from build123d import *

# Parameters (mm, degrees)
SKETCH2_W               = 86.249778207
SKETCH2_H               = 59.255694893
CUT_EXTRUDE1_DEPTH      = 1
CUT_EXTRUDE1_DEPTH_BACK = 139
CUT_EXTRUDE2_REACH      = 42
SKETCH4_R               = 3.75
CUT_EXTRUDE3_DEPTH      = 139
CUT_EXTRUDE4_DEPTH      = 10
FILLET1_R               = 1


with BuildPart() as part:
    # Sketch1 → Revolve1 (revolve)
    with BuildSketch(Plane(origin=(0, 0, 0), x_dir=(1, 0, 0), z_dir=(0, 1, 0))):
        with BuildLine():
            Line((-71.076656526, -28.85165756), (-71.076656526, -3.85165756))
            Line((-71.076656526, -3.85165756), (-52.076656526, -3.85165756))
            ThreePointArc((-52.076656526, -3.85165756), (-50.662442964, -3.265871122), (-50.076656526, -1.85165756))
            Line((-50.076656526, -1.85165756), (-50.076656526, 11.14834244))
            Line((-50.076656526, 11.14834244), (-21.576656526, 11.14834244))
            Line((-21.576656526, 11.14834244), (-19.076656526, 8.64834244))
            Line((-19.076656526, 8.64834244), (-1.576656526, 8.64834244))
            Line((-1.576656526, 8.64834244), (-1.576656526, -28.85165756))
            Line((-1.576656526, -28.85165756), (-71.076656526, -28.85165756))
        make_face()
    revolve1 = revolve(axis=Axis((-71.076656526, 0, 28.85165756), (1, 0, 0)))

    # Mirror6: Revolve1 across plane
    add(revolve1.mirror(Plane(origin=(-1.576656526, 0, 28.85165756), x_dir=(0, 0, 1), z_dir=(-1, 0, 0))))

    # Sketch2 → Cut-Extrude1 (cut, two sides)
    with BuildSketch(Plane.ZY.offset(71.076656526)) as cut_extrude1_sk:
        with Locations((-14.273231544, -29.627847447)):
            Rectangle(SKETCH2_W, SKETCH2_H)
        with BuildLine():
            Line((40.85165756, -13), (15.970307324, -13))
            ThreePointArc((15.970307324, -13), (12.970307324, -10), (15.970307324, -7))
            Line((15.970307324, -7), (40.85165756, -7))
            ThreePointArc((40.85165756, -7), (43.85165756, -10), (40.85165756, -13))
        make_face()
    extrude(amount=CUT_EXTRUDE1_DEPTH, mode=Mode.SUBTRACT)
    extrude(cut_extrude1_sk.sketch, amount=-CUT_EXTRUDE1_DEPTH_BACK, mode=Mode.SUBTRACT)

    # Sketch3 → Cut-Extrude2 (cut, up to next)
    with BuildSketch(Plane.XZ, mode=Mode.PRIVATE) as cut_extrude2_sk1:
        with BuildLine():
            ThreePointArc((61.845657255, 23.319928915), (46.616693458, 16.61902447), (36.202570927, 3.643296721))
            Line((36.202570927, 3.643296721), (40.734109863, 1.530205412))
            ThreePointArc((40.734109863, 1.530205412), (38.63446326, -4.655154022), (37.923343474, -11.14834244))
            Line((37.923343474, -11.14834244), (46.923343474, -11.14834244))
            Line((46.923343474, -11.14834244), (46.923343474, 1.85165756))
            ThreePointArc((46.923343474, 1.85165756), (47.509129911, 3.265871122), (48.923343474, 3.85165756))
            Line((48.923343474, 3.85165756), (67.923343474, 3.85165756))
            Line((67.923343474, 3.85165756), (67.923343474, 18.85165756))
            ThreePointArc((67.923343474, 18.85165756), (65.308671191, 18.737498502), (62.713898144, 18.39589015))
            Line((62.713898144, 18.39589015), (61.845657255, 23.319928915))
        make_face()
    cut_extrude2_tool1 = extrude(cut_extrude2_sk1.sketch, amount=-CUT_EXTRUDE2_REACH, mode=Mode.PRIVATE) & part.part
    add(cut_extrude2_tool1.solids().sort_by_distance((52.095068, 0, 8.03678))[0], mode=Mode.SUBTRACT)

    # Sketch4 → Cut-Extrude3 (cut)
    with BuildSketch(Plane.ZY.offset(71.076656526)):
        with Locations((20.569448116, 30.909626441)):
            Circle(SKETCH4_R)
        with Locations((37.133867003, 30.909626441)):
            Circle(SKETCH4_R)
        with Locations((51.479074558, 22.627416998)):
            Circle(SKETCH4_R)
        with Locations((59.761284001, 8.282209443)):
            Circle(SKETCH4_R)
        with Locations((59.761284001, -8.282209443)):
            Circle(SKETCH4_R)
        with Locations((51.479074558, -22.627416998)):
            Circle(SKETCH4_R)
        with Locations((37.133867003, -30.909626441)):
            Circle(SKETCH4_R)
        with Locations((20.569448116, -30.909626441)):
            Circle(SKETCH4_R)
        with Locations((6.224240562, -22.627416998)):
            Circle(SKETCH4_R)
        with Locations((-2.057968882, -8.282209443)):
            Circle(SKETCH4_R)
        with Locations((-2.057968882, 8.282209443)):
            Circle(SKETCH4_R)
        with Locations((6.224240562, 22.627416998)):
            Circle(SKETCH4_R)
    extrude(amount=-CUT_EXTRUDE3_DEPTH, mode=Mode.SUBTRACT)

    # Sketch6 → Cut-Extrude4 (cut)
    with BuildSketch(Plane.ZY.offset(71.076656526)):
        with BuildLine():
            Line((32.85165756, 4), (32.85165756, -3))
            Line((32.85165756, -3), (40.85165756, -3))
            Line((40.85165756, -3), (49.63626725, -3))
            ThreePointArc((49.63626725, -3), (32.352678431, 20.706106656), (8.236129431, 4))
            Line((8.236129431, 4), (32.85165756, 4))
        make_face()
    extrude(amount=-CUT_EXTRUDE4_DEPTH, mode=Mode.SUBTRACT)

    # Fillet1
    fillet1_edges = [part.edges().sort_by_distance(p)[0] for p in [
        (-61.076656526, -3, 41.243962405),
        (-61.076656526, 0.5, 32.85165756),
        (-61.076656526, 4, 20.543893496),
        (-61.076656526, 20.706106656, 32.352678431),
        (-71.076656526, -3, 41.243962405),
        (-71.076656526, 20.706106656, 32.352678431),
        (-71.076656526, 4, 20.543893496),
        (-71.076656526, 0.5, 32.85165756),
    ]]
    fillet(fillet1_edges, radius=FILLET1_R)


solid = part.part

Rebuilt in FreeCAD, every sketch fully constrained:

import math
import FreeCAD as App
import Part
import Sketcher
Q = App.Units.Quantity


def edges_at(feature, points):
    """Names of the edges that pass closest to the given points."""
    edges = feature.Shape.Edges
    near = lambda p: min(range(len(edges)), key=lambda i: edges[i].distToShape(Part.Vertex(*p))[0])
    return sorted({f"Edge{near(p) + 1}" for p in points})

doc = App.newDocument("Part")
params = doc.addObject("Spreadsheet::Sheet", "Params")
for row, (alias, value) in enumerate([
    ("sketch1_radius", "2 mm"),
    ("sketch1_width", "19 mm"),
    ("sketch1_height", "25 mm"),
    ("sketch1_height2", "13 mm"),
    ("sketch1_width2", "69.5 mm"),
    ("revolution_angle", "360 deg"),
    ("sketch2_radius", "3 mm"),
    ("sketch2_width", "7 mm"),
    ("sketch2_height", "12 mm"),
    ("sketch3_radius", "35 mm"),
    ("sketch3_radius2", "30 mm"),
    ("sketch3_radius3", "2 mm"),
    ("sketch3_width", "9 mm"),
    ("sketch3_height", "13 mm"),
    ("pocket2_length", "38.157568 mm"),
    ("sketch4_diameter", "7.5 mm"),
    ("pocket3_length", "139 mm"),
    ("sketch5_radius", "21 mm"),
    ("sketch5_width", "7 mm"),
    ("pocket4_length", "10 mm"),
    ("fillet_radius", "1 mm"),
], start=1):
    params.set(f"A{row}", alias)
    params.set(f"B{row}", "=" + value)
    params.setAlias(f"B{row}", alias)

body = doc.addObject("PartDesign::Body", "Body")

# Sketch on XZ plane
sketch1 = body.newObject("Sketcher::SketchObject", "Sketch")
sketch1.AttachmentSupport = (doc.getObject("XZ_Plane"), [""])
sketch1.MapMode = "FlatFace"
sketch1.addGeometry([
    Part.LineSegment(App.Vector(-71.076657, 3.851658, 0), App.Vector(-71.076657, 28.851658, 0)),  # 0
    Part.LineSegment(App.Vector(-71.076657, 28.851658, 0), App.Vector(-1.576657, 28.851658, 0)),  # 1
    Part.LineSegment(App.Vector(-1.576657, 28.851658, 0), App.Vector(-1.576657, -8.648342, 0)),  # 2
    Part.LineSegment(App.Vector(-1.576657, -8.648342, 0), App.Vector(-19.076657, -8.648342, 0)),  # 3
    Part.LineSegment(App.Vector(-19.076657, -8.648342, 0), App.Vector(-21.576657, -11.148342, 0)),  # 4
    Part.LineSegment(App.Vector(-21.576657, -11.148342, 0), App.Vector(-50.076657, -11.148342, 0)),  # 5
    Part.LineSegment(App.Vector(-50.076657, -11.148342, 0), App.Vector(-50.076657, 1.851658, 0)),  # 6
    Part.ArcOfCircle(Part.Circle(App.Vector(-52.076657, 1.851658, 0), App.Vector(0, 0, 1), 2), math.radians(0), math.radians(90)),  # 7
    Part.LineSegment(App.Vector(-52.076657, 3.851658, 0), App.Vector(-71.076657, 3.851658, 0)),  # 8
], False)
sketch1.addGeometry(Part.LineSegment(App.Vector(-71.076657, 28.851658, 0), App.Vector(-1.576657, 28.851658, 0)), True)  # axis
sketch1.addConstraint([
    Sketcher.Constraint("Coincident", 0, 2, 1, 1),
    Sketcher.Constraint("Coincident", 1, 2, 2, 1),
    Sketcher.Constraint("Coincident", 2, 2, 3, 1),
    Sketcher.Constraint("Coincident", 3, 2, 4, 1),
    Sketcher.Constraint("Coincident", 4, 2, 5, 1),
    Sketcher.Constraint("Coincident", 5, 2, 6, 1),
    Sketcher.Constraint("Tangent", 6, 2, 7, 1),
    Sketcher.Constraint("Tangent", 7, 2, 8, 1),
    Sketcher.Constraint("Coincident", 8, 2, 0, 1),
    Sketcher.Constraint("Vertical", 0),
    Sketcher.Constraint("Horizontal", 1),
    Sketcher.Constraint("Vertical", 2),
    Sketcher.Constraint("Horizontal", 3),
    Sketcher.Constraint("Horizontal", 5),
    Sketcher.Constraint("Vertical", 6),
    Sketcher.Constraint("Horizontal", 8),
    Sketcher.Constraint("Horizontal", 9),
    Sketcher.Constraint("Coincident", 9, 1, 0, 2),
    Sketcher.Constraint("Vertical", 2, 2, 9, 2),
    Sketcher.Constraint("Radius", 7, Q("2 mm")),
    Sketcher.Constraint("DistanceX", 8, 2, 8, 1, Q("19 mm")),
    Sketcher.Constraint("DistanceY", 0, 1, 0, 2, Q("25 mm")),
    Sketcher.Constraint("DistanceY", 6, 1, 6, 2, Q("13 mm")),
    Sketcher.Constraint("Angle", 4, Q("-135 deg")),
    Sketcher.Constraint("DistanceX", 1, 1, 1, 2, Q("69.5 mm")),
    Sketcher.Constraint("DistanceX", 3, 2, 3, 1, Q("17.5 mm")),
    Sketcher.Constraint("DistanceX", 5, 2, 5, 1, Q("28.5 mm")),
    Sketcher.Constraint("DistanceX", 7, 3, -1, 1, Q("52.076657 mm")),
    Sketcher.Constraint("DistanceY", -1, 1, 7, 3, Q("1.851658 mm")),
])
sketch1.setExpression("Constraints[19]", "Params.sketch1_radius")
sketch1.setExpression("Constraints[20]", "Params.sketch1_width")
sketch1.setExpression("Constraints[21]", "Params.sketch1_height")
sketch1.setExpression("Constraints[22]", "Params.sketch1_height2")
sketch1.setExpression("Constraints[24]", "Params.sketch1_width2")
revolution = body.newObject("PartDesign::Revolution", "Revolution")
revolution.Profile = sketch1
revolution.ReferenceAxis = (sketch1, ["Axis0"])
revolution.setExpression("Angle", "Params.revolution_angle")
doc.recompute()

datumplane = body.newObject("PartDesign::Plane", "DatumPlane")
datumplane.AttachmentSupport = (doc.getObject("YZ_Plane"), [""])
datumplane.MapMode = "FlatFace"
datumplane.AttachmentOffset = App.Placement(App.Vector(0, 0, -1.576657), App.Rotation())
mirrored = body.newObject("PartDesign::Mirrored", "Mirrored")
mirrored.Originals = [revolution]
mirrored.MirrorPlane = (datumplane, [""])
body.Tip = mirrored

# Sketch on YZ plane
sketch2 = body.newObject("Sketcher::SketchObject", "Sketch001")
sketch2.AttachmentSupport = (doc.getObject("YZ_Plane"), [""])
sketch2.MapMode = "FlatFace"
sketch2.AttachmentOffset = App.Placement(App.Vector(0, 0, -71.076657), App.Rotation())
sketch2.addGeometry([
    Part.LineSegment(App.Vector(0, -57.398121, 0), App.Vector(-59.255695, -57.398121, 0)),  # 0
    Part.LineSegment(App.Vector(-59.255695, -57.398121, 0), App.Vector(-59.255695, 28.851658, 0)),  # 1
    Part.LineSegment(App.Vector(-59.255695, 28.851658, 0), App.Vector(-13, 28.851658, 0)),  # 2
    Part.LineSegment(App.Vector(-13, 28.851658, 0), App.Vector(-13, 40.851658, 0)),  # 3
    Part.ArcOfCircle(Part.Circle(App.Vector(-10, 40.851658, 0), App.Vector(0, 0, 1), 3), math.radians(0), math.radians(180)),  # 4
    Part.LineSegment(App.Vector(-7, 40.851658, 0), App.Vector(-7, 28.851658, 0)),  # 5
    Part.LineSegment(App.Vector(-7, 28.851658, 0), App.Vector(0, 28.851658, 0)),  # 6
    Part.LineSegment(App.Vector(0, 28.851658, 0), App.Vector(0, -57.398121, 0)),  # 7
], False)
sketch2.addConstraint([
    Sketcher.Constraint("Coincident", 0, 2, 1, 1),
    Sketcher.Constraint("Coincident", 1, 2, 2, 1),
    Sketcher.Constraint("Coincident", 2, 2, 3, 1),
    Sketcher.Constraint("Tangent", 3, 2, 4, 2),
    Sketcher.Constraint("Tangent", 4, 1, 5, 1),
    Sketcher.Constraint("Coincident", 5, 2, 6, 1),
    Sketcher.Constraint("Coincident", 6, 2, 7, 1),
    Sketcher.Constraint("Coincident", 7, 2, 0, 1),
    Sketcher.Constraint("Horizontal", 0),
    Sketcher.Constraint("Vertical", 1),
    Sketcher.Constraint("Horizontal", 2),
    Sketcher.Constraint("Vertical", 3),
    Sketcher.Constraint("Vertical", 5),
    Sketcher.Constraint("Horizontal", 6),
    Sketcher.Constraint("Vertical", 7),
    Sketcher.Constraint("PointOnObject", 6, 2, -2),
    Sketcher.Constraint("Horizontal", 2, 2, 5, 2),
    Sketcher.Constraint("Radius", 4, Q("3 mm")),
    Sketcher.Constraint("DistanceX", 6, 1, 6, 2, Q("7 mm")),
    Sketcher.Constraint("DistanceY", 3, 1, 3, 2, Q("12 mm")),
    Sketcher.Constraint("DistanceY", 1, 1, 1, 2, Q("86.249778 mm")),
    Sketcher.Constraint("DistanceX", 0, 2, 0, 1, Q("59.255695 mm")),
    Sketcher.Constraint("DistanceY", 0, 2, -1, 1, Q("57.398121 mm")),
])
sketch2.setExpression("Constraints[17]", "Params.sketch2_radius")
sketch2.setExpression("Constraints[18]", "Params.sketch2_width")
sketch2.setExpression("Constraints[19]", "Params.sketch2_height")
pocket1 = body.newObject("PartDesign::Pocket", "Pocket")
pocket1.Profile = sketch2
pocket1.Type = "ThroughAll"
pocket1.Midplane = True

# Sketch on XZ plane
sketch3 = body.newObject("Sketcher::SketchObject", "Sketch002")
sketch3.AttachmentSupport = (doc.getObject("XZ_Plane"), [""])
sketch3.MapMode = "FlatFace"
sketch3.addGeometry([
    Part.ArcOfCircle(Part.Circle(App.Vector(67.923343, -11.148342, 0), App.Vector(0, 0, 1), 35), math.radians(100), math.radians(155)),  # 0
    Part.LineSegment(App.Vector(36.202571, 3.643297, 0), App.Vector(40.73411, 1.530205, 0)),  # 1
    Part.ArcOfCircle(Part.Circle(App.Vector(67.923343, -11.148342, 0), App.Vector(0, 0, 1), 30), math.radians(155), math.radians(180)),  # 2
    Part.LineSegment(App.Vector(37.923343, -11.148342, 0), App.Vector(46.923343, -11.148342, 0)),  # 3
    Part.LineSegment(App.Vector(46.923343, -11.148342, 0), App.Vector(46.923343, 1.851658, 0)),  # 4
    Part.ArcOfCircle(Part.Circle(App.Vector(48.923343, 1.851658, 0), App.Vector(0, 0, 1), 2), math.radians(90), math.radians(180)),  # 5
    Part.LineSegment(App.Vector(48.923343, 3.851658, 0), App.Vector(67.923343, 3.851658, 0)),  # 6
    Part.LineSegment(App.Vector(67.923343, 3.851658, 0), App.Vector(67.923343, 18.851658, 0)),  # 7
    Part.ArcOfCircle(Part.Circle(App.Vector(67.923343, -11.148343, 0), App.Vector(0, 0, 1), 30), math.radians(90), math.radians(100)),  # 8
    Part.LineSegment(App.Vector(62.713898, 18.39589, 0), App.Vector(61.845657, 23.319929, 0)),  # 9
], False)
sketch3.addConstraint([
    Sketcher.Constraint("Coincident", 0, 2, 1, 1),
    Sketcher.Constraint("Coincident", 1, 2, 2, 1),
    Sketcher.Constraint("Coincident", 2, 2, 3, 1),
    Sketcher.Constraint("Coincident", 3, 2, 4, 1),
    Sketcher.Constraint("Tangent", 4, 2, 5, 2),
    Sketcher.Constraint("Tangent", 5, 1, 6, 1),
    Sketcher.Constraint("Coincident", 6, 2, 7, 1),
    Sketcher.Constraint("Coincident", 7, 2, 8, 1),
    Sketcher.Constraint("Coincident", 8, 2, 9, 1),
    Sketcher.Constraint("Coincident", 9, 2, 0, 1),
    Sketcher.Constraint("Horizontal", 3),
    Sketcher.Constraint("Vertical", 4),
    Sketcher.Constraint("Horizontal", 6),
    Sketcher.Constraint("Vertical", 7),
    Sketcher.Constraint("Coincident", 2, 3, 0, 3),
    Sketcher.Constraint("Coincident", 8, 3, 0, 3),
    Sketcher.Constraint("Equal", 2, 8),
    Sketcher.Constraint("Horizontal", 8, 3, 2, 2),
    Sketcher.Constraint("Vertical", 8, 3, 6, 2),
    Sketcher.Constraint("Radius", 0, Q("35 mm")),
    Sketcher.Constraint("Radius", 2, Q("30 mm")),
    Sketcher.Constraint("Radius", 5, Q("2 mm")),
    Sketcher.Constraint("DistanceX", 3, 1, 3, 2, Q("9 mm")),
    Sketcher.Constraint("DistanceY", 4, 1, 4, 2, Q("13 mm")),
    Sketcher.Constraint("Angle", 1, Q("-25 deg")),
    Sketcher.Constraint("Angle", 9, Q("100 deg")),
    Sketcher.Constraint("DistanceX", -1, 1, 8, 2, Q("62.713898 mm")),
    Sketcher.Constraint("DistanceX", -1, 1, 0, 2, Q("36.202571 mm")),
    Sketcher.Constraint("DistanceY", -1, 1, 8, 2, Q("18.39589 mm")),
    Sketcher.Constraint("DistanceY", 5, 3, 0, 2, Q("1.791639 mm")),
])
sketch3.setExpression("Constraints[19]", "Params.sketch3_radius")
sketch3.setExpression("Constraints[20]", "Params.sketch3_radius2")
sketch3.setExpression("Constraints[21]", "Params.sketch3_radius3")
sketch3.setExpression("Constraints[22]", "Params.sketch3_width")
sketch3.setExpression("Constraints[23]", "Params.sketch3_height")
pocket2 = body.newObject("PartDesign::Pocket", "Pocket001")
pocket2.Profile = sketch3
pocket2.setExpression("Length", "Params.pocket2_length")

# Sketch on YZ plane
sketch4 = body.newObject("Sketcher::SketchObject", "Sketch003")
sketch4.AttachmentSupport = (doc.getObject("YZ_Plane"), [""])
sketch4.MapMode = "FlatFace"
sketch4.AttachmentOffset = App.Placement(App.Vector(0, 0, -71.076657), App.Rotation())
sketch4.addGeometry([
    Part.Circle(App.Vector(30.909626, 20.569448, 0), App.Vector(0, 0, 1), 3.75),  # 0
    Part.Circle(App.Vector(30.909626, 37.133867, 0), App.Vector(0, 0, 1), 3.75),  # 1
    Part.Circle(App.Vector(22.627417, 51.479075, 0), App.Vector(0, 0, 1), 3.75),  # 2
    Part.Circle(App.Vector(8.282209, 59.761284, 0), App.Vector(0, 0, 1), 3.75),  # 3
    Part.Circle(App.Vector(-8.282209, 59.761284, 0), App.Vector(0, 0, 1), 3.75),  # 4
    Part.Circle(App.Vector(-22.627417, 51.479075, 0), App.Vector(0, 0, 1), 3.75),  # 5
    Part.Circle(App.Vector(-30.909626, 37.133867, 0), App.Vector(0, 0, 1), 3.75),  # 6
    Part.Circle(App.Vector(-30.909626, 20.569448, 0), App.Vector(0, 0, 1), 3.75),  # 7
    Part.Circle(App.Vector(-22.627417, 6.224241, 0), App.Vector(0, 0, 1), 3.75),  # 8
    Part.Circle(App.Vector(-8.282209, -2.057969, 0), App.Vector(0, 0, 1), 3.75),  # 9
    Part.Circle(App.Vector(8.282209, -2.057969, 0), App.Vector(0, 0, 1), 3.75),  # 10
    Part.Circle(App.Vector(22.627417, 6.224241, 0), App.Vector(0, 0, 1), 3.75),  # 11
], False)
sketch4.addConstraint([
    Sketcher.Constraint("Equal", 0, 1),
    Sketcher.Constraint("Equal", 1, 2),
    Sketcher.Constraint("Equal", 2, 3),
    Sketcher.Constraint("Equal", 3, 4),
    Sketcher.Constraint("Equal", 4, 5),
    Sketcher.Constraint("Equal", 5, 6),
    Sketcher.Constraint("Equal", 6, 7),
    Sketcher.Constraint("Equal", 7, 8),
    Sketcher.Constraint("Equal", 8, 9),
    Sketcher.Constraint("Equal", 9, 10),
    Sketcher.Constraint("Equal", 10, 11),
    Sketcher.Constraint("Symmetric", 3, 3, 4, 3, -2),
    Sketcher.Constraint("Symmetric", 2, 3, 5, 3, -2),
    Sketcher.Constraint("Symmetric", 1, 3, 6, 3, -2),
    Sketcher.Constraint("Symmetric", 0, 3, 7, 3, -2),
    Sketcher.Constraint("Symmetric", 9, 3, 10, 3, -2),
    Sketcher.Constraint("Symmetric", 8, 3, 11, 3, -2),
    Sketcher.Constraint("Vertical", 0, 3, 1, 3),
    Sketcher.Constraint("Vertical", 5, 3, 8, 3),
    Sketcher.Constraint("Vertical", 4, 3, 9, 3),
    Sketcher.Constraint("Diameter", 0, Q("7.5 mm")),
    Sketcher.Constraint("DistanceY", -1, 1, 0, 3, Q("20.569448 mm")),
    Sketcher.Constraint("DistanceX", -1, 1, 3, 3, Q("8.282209 mm")),
    Sketcher.Constraint("DistanceY", -1, 1, 8, 3, Q("6.224241 mm")),
    Sketcher.Constraint("DistanceY", 9, 3, -1, 1, Q("2.057969 mm")),
    Sketcher.Constraint("DistanceY", 0, 3, 1, 3, Q("16.564419 mm")),
    Sketcher.Constraint("DistanceX", 2, 3, 1, 3, Q("8.282209 mm")),
    Sketcher.Constraint("DistanceY", 2, 3, 3, 3, Q("8.282209 mm")),
    Sketcher.Constraint("DistanceX", -1, 1, 0, 3, Q("30.909626 mm")),
    Sketcher.Constraint("DistanceY", -1, 1, 2, 3, Q("51.479075 mm")),
])
sketch4.setExpression("Constraints[20]", "Params.sketch4_diameter")
pocket3 = body.newObject("PartDesign::Pocket", "Pocket002")
pocket3.Profile = sketch4
pocket3.setExpression("Length", "Params.pocket3_length")
pocket3.Reversed = True

# Sketch on YZ plane
sketch5 = body.newObject("Sketcher::SketchObject", "Sketch004")
sketch5.AttachmentSupport = (doc.getObject("YZ_Plane"), [""])
sketch5.MapMode = "FlatFace"
sketch5.AttachmentOffset = App.Placement(App.Vector(0, 0, -71.076657), App.Rotation())
sketch5.addGeometry([
    Part.LineSegment(App.Vector(4, 32.851658, 0), App.Vector(-3, 32.851658, 0)),
    Part.LineSegment(App.Vector(-3, 32.851658, 0), App.Vector(-3, 49.636267, 0)),
    Part.ArcOfCircle(Part.Circle(App.Vector(0, 28.851658, 0), App.Vector(0, 0, 1), 21), math.radians(-79.019425), math.radians(98.213211)),
    Part.LineSegment(App.Vector(4, 8.236129, 0), App.Vector(4, 32.851658, 0)),
], False)
sketch5.addConstraint([
    Sketcher.Constraint("Coincident", 0, 2, 1, 1),
    Sketcher.Constraint("Coincident", 1, 2, 2, 2),
    Sketcher.Constraint("Coincident", 2, 1, 3, 1),
    Sketcher.Constraint("Coincident", 3, 2, 0, 1),
    Sketcher.Constraint("Horizontal", 0),
    Sketcher.Constraint("Vertical", 1),
    Sketcher.Constraint("Vertical", 3),
    Sketcher.Constraint("PointOnObject", 2, 3, -2),
    Sketcher.Constraint("Radius", 2, Q("21 mm")),
    Sketcher.Constraint("DistanceX", 0, 2, 0, 1, Q("7 mm")),
    Sketcher.Constraint("DistanceX", 0, 2, -1, 1, Q("3 mm")),
    Sketcher.Constraint("DistanceY", 2, 3, 0, 2, Q("4 mm")),
    Sketcher.Constraint("DistanceY", -1, 1, 2, 1, Q("8.236129 mm")),
])
sketch5.setExpression("Constraints[8]", "Params.sketch5_radius")
sketch5.setExpression("Constraints[9]", "Params.sketch5_width")
pocket4 = body.newObject("PartDesign::Pocket", "Pocket003")
pocket4.Profile = sketch5
pocket4.setExpression("Length", "Params.pocket4_length")
pocket4.Reversed = True
doc.recompute()

fillet = body.newObject("PartDesign::Fillet", "Fillet")
fillet.Base = (pocket4, edges_at(pocket4, [
    (-61.077, -3, 41.244),
    (-61.077, 0.5, 32.852),
    (-61.077, 4, 20.544),
    (-61.077, 20.706, 32.353),
    (-71.077, -3, 41.244),
    (-71.077, 20.706, 32.353),
    (-71.077, 4, 20.544),
    (-71.077, 0.5, 32.852),
]))
fillet.setExpression("Radius", "Params.fillet_radius")

doc.recompute()
